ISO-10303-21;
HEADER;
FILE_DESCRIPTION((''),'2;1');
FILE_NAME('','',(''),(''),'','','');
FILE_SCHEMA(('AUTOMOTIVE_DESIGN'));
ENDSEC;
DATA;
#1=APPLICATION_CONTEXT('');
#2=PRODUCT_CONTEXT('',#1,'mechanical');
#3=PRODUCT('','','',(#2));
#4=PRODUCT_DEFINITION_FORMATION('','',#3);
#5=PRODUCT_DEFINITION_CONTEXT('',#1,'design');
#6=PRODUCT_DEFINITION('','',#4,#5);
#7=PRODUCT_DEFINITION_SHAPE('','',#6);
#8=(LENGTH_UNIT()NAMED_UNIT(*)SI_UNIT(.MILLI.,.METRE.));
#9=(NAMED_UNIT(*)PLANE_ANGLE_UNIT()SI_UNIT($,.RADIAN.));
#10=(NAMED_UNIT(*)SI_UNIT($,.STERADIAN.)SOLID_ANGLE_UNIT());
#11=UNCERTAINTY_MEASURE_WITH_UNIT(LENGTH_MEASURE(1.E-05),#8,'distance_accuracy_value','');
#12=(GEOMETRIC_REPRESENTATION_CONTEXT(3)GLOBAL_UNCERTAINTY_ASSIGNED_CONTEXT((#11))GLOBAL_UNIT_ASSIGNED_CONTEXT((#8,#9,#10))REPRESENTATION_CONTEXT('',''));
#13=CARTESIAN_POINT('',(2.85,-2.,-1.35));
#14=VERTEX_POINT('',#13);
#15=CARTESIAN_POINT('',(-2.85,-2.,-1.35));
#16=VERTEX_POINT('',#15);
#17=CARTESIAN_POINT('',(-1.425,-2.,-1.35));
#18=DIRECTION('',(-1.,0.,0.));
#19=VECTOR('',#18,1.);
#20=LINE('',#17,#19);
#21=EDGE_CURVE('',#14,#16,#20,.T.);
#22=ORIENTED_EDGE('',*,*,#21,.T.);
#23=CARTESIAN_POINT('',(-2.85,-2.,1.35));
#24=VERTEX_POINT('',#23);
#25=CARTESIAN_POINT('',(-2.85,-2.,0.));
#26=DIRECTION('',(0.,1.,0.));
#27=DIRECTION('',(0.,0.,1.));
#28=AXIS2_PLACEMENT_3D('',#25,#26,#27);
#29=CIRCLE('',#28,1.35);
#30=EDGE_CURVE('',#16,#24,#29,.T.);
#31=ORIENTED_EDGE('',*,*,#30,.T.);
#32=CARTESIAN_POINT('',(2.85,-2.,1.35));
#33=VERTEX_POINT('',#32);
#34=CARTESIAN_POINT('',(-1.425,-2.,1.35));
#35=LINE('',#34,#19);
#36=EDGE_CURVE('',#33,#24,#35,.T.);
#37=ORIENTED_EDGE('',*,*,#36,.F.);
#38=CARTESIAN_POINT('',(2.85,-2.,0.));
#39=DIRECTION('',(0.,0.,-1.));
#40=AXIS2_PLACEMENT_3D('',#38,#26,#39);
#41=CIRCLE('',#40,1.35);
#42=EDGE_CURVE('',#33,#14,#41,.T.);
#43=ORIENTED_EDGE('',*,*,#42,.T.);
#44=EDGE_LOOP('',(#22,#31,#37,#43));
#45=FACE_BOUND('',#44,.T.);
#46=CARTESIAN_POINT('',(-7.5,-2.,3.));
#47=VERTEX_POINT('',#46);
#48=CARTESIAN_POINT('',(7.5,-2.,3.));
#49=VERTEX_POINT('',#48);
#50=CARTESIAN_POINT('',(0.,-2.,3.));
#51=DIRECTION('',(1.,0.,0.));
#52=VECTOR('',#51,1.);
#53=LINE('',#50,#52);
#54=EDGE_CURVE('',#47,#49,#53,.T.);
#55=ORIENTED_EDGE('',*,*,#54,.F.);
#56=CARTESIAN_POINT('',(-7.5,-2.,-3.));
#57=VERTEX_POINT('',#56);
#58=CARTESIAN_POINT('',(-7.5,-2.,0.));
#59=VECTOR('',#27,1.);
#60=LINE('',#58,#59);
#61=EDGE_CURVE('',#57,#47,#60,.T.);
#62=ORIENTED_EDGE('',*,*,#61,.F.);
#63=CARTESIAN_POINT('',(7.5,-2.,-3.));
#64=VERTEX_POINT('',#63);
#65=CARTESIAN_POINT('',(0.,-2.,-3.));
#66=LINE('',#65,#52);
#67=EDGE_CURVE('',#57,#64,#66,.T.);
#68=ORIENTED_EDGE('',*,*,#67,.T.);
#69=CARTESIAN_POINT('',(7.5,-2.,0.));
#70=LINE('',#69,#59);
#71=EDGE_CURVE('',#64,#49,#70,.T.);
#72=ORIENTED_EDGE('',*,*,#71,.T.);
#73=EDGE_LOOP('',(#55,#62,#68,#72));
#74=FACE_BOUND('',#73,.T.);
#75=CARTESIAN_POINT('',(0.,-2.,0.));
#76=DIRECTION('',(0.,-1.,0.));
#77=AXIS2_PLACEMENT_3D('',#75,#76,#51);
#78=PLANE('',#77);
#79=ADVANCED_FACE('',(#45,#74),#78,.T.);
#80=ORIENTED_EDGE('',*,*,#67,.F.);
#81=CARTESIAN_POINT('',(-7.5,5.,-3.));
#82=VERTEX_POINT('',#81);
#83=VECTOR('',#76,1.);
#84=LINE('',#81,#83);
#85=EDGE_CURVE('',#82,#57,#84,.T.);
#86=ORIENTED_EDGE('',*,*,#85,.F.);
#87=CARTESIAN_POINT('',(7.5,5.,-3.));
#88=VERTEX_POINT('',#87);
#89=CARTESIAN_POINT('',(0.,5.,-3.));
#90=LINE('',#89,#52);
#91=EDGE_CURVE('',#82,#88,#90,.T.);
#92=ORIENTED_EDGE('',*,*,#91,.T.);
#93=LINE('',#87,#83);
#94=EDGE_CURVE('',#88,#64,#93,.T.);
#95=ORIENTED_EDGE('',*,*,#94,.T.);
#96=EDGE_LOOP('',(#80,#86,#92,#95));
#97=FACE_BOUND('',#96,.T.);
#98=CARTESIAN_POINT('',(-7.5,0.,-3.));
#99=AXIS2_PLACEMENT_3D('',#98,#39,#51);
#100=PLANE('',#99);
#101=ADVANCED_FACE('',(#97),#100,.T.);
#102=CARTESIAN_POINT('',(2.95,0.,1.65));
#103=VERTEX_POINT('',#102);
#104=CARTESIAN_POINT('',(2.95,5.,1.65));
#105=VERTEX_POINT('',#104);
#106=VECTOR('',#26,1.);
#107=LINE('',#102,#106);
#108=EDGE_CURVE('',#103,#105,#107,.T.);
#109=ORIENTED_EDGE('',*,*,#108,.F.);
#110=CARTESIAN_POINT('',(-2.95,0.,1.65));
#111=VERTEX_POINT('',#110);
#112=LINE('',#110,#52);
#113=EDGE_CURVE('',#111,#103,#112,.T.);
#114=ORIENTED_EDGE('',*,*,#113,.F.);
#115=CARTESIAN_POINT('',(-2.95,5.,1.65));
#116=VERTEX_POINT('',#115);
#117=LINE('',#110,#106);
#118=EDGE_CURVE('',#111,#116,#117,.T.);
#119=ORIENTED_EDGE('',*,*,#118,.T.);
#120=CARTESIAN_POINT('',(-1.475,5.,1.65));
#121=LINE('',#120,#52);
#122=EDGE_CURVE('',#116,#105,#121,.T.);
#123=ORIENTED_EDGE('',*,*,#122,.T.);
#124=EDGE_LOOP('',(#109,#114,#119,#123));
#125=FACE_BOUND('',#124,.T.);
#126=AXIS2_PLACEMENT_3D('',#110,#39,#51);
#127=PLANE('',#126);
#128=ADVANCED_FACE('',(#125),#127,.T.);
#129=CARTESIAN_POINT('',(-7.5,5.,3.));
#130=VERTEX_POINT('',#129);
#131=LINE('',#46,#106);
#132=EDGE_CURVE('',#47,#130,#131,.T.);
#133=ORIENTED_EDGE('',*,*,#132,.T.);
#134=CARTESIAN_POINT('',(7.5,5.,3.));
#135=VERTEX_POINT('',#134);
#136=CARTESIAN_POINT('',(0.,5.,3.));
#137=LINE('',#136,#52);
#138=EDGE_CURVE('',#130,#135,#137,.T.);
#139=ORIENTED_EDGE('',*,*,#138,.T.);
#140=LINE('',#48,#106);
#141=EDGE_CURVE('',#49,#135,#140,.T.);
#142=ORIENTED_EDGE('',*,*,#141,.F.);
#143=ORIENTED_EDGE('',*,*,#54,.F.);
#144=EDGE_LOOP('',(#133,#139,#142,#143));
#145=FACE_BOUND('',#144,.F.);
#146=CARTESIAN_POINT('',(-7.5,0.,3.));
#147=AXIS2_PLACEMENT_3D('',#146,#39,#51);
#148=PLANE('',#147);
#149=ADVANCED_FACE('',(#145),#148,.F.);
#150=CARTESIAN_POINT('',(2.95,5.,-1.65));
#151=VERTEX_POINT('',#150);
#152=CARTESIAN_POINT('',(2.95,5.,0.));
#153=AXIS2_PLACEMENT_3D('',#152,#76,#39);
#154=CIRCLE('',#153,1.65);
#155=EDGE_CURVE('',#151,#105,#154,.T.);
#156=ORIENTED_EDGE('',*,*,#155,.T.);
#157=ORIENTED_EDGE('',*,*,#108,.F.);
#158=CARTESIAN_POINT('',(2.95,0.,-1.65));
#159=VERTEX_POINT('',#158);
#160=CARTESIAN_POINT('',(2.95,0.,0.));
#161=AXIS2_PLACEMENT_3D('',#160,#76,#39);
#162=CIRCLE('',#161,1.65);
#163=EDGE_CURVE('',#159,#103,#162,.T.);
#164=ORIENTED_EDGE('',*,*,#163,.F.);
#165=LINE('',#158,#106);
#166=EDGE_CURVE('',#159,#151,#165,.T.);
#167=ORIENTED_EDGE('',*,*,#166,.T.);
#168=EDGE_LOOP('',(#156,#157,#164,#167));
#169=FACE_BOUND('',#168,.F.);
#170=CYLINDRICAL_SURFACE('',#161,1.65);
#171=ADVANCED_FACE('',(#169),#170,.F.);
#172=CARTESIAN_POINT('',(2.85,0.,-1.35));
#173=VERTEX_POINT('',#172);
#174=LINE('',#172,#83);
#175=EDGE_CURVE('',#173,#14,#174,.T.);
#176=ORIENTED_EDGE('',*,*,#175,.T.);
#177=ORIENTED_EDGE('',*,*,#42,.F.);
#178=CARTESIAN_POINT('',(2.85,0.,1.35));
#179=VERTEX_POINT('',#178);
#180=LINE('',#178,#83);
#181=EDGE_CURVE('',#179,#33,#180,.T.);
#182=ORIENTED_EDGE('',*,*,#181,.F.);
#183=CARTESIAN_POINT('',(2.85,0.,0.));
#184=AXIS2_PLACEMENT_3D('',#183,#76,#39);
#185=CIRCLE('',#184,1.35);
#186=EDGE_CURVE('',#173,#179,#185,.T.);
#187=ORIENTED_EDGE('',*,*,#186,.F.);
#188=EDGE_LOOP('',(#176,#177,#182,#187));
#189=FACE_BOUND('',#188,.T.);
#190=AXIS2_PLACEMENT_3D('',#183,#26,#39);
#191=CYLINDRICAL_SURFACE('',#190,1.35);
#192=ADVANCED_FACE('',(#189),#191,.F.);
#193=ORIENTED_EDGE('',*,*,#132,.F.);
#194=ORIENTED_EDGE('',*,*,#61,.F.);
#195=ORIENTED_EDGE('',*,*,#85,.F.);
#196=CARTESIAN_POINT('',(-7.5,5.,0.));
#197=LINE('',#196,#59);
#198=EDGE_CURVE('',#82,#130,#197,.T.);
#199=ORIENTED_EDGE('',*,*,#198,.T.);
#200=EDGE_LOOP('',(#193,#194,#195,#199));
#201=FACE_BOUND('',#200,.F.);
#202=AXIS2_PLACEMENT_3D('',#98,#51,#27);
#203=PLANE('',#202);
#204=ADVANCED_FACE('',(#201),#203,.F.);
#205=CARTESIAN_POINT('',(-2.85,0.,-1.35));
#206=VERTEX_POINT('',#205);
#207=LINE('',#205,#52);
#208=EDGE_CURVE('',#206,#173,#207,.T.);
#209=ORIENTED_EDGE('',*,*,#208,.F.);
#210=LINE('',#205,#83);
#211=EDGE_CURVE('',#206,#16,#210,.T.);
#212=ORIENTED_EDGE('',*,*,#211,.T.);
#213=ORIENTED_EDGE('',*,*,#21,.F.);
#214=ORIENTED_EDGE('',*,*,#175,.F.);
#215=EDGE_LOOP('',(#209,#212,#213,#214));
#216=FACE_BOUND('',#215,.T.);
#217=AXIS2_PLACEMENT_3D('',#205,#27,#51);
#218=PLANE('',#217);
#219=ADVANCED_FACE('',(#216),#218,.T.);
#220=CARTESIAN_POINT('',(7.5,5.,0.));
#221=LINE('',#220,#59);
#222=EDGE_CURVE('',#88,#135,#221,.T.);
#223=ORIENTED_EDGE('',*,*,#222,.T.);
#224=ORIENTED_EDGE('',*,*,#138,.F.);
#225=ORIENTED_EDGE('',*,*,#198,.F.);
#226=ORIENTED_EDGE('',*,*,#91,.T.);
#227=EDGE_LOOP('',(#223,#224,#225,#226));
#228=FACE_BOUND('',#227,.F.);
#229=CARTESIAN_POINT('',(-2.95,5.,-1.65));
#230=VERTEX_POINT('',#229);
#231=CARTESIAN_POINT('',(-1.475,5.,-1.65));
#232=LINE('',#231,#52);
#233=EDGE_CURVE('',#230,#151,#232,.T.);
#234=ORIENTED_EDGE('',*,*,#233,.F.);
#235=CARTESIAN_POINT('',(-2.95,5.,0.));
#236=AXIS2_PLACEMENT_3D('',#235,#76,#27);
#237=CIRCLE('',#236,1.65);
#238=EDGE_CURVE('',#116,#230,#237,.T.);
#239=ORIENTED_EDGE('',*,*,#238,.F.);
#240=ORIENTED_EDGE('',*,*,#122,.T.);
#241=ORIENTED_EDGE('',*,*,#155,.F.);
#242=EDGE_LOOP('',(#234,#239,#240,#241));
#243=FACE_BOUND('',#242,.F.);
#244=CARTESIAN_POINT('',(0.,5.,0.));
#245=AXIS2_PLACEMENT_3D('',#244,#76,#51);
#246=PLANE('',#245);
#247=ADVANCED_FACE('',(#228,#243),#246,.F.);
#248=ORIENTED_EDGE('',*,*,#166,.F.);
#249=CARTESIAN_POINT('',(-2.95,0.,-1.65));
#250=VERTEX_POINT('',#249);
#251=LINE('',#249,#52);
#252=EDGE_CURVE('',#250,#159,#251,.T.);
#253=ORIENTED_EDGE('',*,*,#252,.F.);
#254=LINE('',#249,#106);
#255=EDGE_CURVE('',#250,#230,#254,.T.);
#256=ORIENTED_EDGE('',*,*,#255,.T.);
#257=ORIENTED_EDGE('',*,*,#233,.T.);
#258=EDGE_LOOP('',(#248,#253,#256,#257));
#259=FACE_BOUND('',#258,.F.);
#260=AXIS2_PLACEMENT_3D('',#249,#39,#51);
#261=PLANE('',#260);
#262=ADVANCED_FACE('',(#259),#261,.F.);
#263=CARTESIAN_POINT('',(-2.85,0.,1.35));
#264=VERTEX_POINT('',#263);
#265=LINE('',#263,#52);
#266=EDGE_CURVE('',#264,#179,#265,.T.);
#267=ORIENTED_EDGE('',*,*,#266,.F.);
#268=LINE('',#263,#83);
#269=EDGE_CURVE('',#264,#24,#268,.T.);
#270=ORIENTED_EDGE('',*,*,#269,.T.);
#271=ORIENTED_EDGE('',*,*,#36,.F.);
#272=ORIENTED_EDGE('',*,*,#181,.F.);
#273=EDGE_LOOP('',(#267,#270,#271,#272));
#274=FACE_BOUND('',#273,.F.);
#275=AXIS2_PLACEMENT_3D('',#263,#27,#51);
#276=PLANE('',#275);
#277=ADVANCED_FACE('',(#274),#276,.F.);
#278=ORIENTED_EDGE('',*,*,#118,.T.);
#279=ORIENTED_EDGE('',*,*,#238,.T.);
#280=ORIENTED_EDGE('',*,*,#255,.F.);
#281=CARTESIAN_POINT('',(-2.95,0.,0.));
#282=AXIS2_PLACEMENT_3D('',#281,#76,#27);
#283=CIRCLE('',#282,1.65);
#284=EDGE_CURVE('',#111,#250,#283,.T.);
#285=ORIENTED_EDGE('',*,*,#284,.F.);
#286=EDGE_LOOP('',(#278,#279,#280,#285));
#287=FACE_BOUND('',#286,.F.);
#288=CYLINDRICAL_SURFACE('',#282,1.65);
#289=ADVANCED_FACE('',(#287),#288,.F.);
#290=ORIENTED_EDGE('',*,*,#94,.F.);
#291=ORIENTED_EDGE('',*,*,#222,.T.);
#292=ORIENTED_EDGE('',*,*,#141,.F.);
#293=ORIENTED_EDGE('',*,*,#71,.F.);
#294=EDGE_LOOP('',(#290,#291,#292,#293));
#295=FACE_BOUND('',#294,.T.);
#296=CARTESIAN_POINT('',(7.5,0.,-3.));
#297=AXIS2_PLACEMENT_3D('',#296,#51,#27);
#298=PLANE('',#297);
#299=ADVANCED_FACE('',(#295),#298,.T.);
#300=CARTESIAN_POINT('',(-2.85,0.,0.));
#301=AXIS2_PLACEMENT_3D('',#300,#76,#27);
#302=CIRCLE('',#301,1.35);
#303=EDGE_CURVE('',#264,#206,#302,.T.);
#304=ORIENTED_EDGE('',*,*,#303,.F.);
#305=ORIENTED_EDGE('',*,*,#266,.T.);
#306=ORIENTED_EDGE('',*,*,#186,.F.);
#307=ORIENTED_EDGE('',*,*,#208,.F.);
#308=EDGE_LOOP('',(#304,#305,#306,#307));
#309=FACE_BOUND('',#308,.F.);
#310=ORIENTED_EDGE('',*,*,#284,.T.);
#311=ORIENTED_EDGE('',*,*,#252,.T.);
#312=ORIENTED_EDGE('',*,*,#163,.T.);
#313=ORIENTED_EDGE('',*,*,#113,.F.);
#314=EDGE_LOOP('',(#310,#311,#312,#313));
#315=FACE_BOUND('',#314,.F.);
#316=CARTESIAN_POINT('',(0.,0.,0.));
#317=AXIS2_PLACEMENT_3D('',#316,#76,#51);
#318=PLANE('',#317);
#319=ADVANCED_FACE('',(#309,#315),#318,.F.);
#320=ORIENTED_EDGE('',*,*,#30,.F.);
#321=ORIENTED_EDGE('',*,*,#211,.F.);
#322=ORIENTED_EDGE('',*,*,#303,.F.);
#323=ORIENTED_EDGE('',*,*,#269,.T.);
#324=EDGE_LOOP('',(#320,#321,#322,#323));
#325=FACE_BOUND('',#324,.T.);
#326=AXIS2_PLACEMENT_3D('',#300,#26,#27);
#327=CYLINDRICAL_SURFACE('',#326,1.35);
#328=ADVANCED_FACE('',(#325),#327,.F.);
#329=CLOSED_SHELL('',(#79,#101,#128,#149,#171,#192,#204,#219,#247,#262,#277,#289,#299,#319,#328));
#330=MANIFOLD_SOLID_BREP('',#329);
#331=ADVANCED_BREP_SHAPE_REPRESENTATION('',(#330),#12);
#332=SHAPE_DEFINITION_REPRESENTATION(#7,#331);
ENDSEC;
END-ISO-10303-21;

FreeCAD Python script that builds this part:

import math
import FreeCAD as App
import Part
import Sketcher

V = App.Vector


def add_polygon(sketch, points):
    """Adds a closed chain of lines whose ends are joined by coincident constraints."""
    first, n = sketch.GeometryCount, len(points)
    for a, b in zip(points, points[1:] + points[:1]):
        sketch.addGeometry(Part.LineSegment(App.Vector(*a, 0), App.Vector(*b, 0)), False)
    for i in range(n):
        sketch.addConstraint(Sketcher.Constraint("Coincident", first + i, 2, first + (i + 1) % n, 1))

doc = App.newDocument("Part")
params = doc.addObject("Spreadsheet::Sheet", "Params")
for row, (alias, value) in enumerate([
    ("sketch1_width", "15 mm"),
    ("sketch1_height", "6 mm"),
    ("pad1_length", "2 mm"),
    ("pad1_length2", "5 mm"),
    ("sketch2_radius", "1.65 mm"),
    ("sketch2_width", "5.9 mm"),
    ("sketch3_radius", "1.35 mm"),
    ("sketch3_width", "5.7 mm"),
], start=1):
    params.set(f"A{row}", alias)
    params.set(f"B{row}", "=" + value)
    params.setAlias(f"B{row}", alias)

body = doc.addObject("PartDesign::Body", "Body")

# Sketch on XZ plane
sketch1 = body.newObject("Sketcher::SketchObject", "Sketch")
sketch1.AttachmentSupport = (doc.getObject("XZ_Plane"), [""])
sketch1.MapMode = "FlatFace"
add_polygon(sketch1, [(-8, 3), (-8, -3), (8, -3), (8, 3)])  # lines 0-3
sketch1.addConstraint([
    Sketcher.Constraint("Vertical", 0),
    Sketcher.Constraint("Horizontal", 1),
    Sketcher.Constraint("Vertical", 2),
    Sketcher.Constraint("Horizontal", 3),
    Sketcher.Constraint("Symmetric", 0, 2, 2, 2, -1, 1),
    Sketcher.Constraint("DistanceX", 1, 1, 1, 2, 15.0),
    Sketcher.Constraint("DistanceY", 0, 2, 0, 1, 6.0),
])
sketch1.setExpression("Constraints[9]", "Params.sketch1_width")
sketch1.setExpression("Constraints[10]", "Params.sketch1_height")
pad1 = body.newObject("PartDesign::Pad", "Pad")
pad1.Profile = sketch1
pad1.Type = "TwoLengths"
pad1.setExpression("Length", "Params.pad1_length")
pad1.setExpression("Length2", "Params.pad1_length2")

# Sketch on XZ plane
sketch2 = body.newObject("Sketcher::SketchObject", "Sketch001")
sketch2.AttachmentSupport = (doc.getObject("XZ_Plane"), [""])
sketch2.MapMode = "FlatFace"
sketch2.addGeometry([
    Part.ArcOfCircle(Part.Circle(V(-3, 0, 0), V(0, 0, 1), 1.6), math.radians(90), math.radians(270)),
    Part.LineSegment(V(-3, -1.6, 0), V(3, -1.6, 0)),
    Part.ArcOfCircle(Part.Circle(V(3, 0, 0), V(0, 0, 1), 1.6), math.radians(-90), math.radians(90)),
    Part.LineSegment(V(3, 1.6, 0), V(-3, 1.6, 0)),
], False)
sketch2.addConstraint([
    Sketcher.Constraint("Tangent", 0, 2, 1, 1),
    Sketcher.Constraint("Tangent", 1, 2, 2, 1),
    Sketcher.Constraint("Tangent", 2, 2, 3, 1),
    Sketcher.Constraint("Tangent", 3, 2, 0, 1),
    Sketcher.Constraint("Horizontal", 1),
    Sketcher.Constraint("Horizontal", 3),
    Sketcher.Constraint("Symmetric", 0, 3, 2, 3, -1, 1),
    Sketcher.Constraint("Radius", 0, 1.65),
    Sketcher.Constraint("DistanceX", 1, 1, 1, 2, 5.9),
])
sketch2.setExpression("Constraints[7]", "Params.sketch2_radius")
sketch2.setExpression("Constraints[8]", "Params.sketch2_width")
pocket1 = body.newObject("PartDesign::Pocket", "Pocket")
pocket1.Profile = sketch2
pocket1.Type = "ThroughAll"

# Sketch on XZ plane
sketch3 = body.newObject("Sketcher::SketchObject", "Sketch002")
sketch3.AttachmentSupport = (doc.getObject("XZ_Plane"), [""])
sketch3.MapMode = "FlatFace"
sketch3.addGeometry([
    Part.ArcOfCircle(Part.Circle(V(-2.9, 0, 0), V(0, 0, 1), 1.4), math.radians(90), math.radians(270)),
    Part.LineSegment(V(-2.9, -1.4, 0), V(2.9, -1.4, 0)),
    Part.ArcOfCircle(Part.Circle(V(2.9, 0, 0), V(0, 0, 1), 1.4), math.radians(-90), math.radians(90)),
    Part.LineSegment(V(2.9, 1.4, 0), V(-2.9, 1.4, 0)),
], False)
sketch3.addConstraint([
    Sketcher.Constraint("Tangent", 0, 2, 1, 1),
    Sketcher.Constraint("Tangent", 1, 2, 2, 1),
    Sketcher.Constraint("Tangent", 2, 2, 3, 1),
    Sketcher.Constraint("Tangent", 3, 2, 0, 1),
    Sketcher.Constraint("Horizontal", 1),
    Sketcher.Constraint("Horizontal", 3),
    Sketcher.Constraint("Symmetric", 0, 3, 2, 3, -1, 1),
    Sketcher.Constraint("Radius", 0, 1.35),
    Sketcher.Constraint("DistanceX", 1, 1, 1, 2, 5.7),
])
sketch3.setExpression("Constraints[7]", "Params.sketch3_radius")
sketch3.setExpression("Constraints[8]", "Params.sketch3_width")
pocket2 = body.newObject("PartDesign::Pocket", "Pocket001")
pocket2.Profile = sketch3
pocket2.Type = "ThroughAll"
pocket2.Reversed = True

doc.recompute()
